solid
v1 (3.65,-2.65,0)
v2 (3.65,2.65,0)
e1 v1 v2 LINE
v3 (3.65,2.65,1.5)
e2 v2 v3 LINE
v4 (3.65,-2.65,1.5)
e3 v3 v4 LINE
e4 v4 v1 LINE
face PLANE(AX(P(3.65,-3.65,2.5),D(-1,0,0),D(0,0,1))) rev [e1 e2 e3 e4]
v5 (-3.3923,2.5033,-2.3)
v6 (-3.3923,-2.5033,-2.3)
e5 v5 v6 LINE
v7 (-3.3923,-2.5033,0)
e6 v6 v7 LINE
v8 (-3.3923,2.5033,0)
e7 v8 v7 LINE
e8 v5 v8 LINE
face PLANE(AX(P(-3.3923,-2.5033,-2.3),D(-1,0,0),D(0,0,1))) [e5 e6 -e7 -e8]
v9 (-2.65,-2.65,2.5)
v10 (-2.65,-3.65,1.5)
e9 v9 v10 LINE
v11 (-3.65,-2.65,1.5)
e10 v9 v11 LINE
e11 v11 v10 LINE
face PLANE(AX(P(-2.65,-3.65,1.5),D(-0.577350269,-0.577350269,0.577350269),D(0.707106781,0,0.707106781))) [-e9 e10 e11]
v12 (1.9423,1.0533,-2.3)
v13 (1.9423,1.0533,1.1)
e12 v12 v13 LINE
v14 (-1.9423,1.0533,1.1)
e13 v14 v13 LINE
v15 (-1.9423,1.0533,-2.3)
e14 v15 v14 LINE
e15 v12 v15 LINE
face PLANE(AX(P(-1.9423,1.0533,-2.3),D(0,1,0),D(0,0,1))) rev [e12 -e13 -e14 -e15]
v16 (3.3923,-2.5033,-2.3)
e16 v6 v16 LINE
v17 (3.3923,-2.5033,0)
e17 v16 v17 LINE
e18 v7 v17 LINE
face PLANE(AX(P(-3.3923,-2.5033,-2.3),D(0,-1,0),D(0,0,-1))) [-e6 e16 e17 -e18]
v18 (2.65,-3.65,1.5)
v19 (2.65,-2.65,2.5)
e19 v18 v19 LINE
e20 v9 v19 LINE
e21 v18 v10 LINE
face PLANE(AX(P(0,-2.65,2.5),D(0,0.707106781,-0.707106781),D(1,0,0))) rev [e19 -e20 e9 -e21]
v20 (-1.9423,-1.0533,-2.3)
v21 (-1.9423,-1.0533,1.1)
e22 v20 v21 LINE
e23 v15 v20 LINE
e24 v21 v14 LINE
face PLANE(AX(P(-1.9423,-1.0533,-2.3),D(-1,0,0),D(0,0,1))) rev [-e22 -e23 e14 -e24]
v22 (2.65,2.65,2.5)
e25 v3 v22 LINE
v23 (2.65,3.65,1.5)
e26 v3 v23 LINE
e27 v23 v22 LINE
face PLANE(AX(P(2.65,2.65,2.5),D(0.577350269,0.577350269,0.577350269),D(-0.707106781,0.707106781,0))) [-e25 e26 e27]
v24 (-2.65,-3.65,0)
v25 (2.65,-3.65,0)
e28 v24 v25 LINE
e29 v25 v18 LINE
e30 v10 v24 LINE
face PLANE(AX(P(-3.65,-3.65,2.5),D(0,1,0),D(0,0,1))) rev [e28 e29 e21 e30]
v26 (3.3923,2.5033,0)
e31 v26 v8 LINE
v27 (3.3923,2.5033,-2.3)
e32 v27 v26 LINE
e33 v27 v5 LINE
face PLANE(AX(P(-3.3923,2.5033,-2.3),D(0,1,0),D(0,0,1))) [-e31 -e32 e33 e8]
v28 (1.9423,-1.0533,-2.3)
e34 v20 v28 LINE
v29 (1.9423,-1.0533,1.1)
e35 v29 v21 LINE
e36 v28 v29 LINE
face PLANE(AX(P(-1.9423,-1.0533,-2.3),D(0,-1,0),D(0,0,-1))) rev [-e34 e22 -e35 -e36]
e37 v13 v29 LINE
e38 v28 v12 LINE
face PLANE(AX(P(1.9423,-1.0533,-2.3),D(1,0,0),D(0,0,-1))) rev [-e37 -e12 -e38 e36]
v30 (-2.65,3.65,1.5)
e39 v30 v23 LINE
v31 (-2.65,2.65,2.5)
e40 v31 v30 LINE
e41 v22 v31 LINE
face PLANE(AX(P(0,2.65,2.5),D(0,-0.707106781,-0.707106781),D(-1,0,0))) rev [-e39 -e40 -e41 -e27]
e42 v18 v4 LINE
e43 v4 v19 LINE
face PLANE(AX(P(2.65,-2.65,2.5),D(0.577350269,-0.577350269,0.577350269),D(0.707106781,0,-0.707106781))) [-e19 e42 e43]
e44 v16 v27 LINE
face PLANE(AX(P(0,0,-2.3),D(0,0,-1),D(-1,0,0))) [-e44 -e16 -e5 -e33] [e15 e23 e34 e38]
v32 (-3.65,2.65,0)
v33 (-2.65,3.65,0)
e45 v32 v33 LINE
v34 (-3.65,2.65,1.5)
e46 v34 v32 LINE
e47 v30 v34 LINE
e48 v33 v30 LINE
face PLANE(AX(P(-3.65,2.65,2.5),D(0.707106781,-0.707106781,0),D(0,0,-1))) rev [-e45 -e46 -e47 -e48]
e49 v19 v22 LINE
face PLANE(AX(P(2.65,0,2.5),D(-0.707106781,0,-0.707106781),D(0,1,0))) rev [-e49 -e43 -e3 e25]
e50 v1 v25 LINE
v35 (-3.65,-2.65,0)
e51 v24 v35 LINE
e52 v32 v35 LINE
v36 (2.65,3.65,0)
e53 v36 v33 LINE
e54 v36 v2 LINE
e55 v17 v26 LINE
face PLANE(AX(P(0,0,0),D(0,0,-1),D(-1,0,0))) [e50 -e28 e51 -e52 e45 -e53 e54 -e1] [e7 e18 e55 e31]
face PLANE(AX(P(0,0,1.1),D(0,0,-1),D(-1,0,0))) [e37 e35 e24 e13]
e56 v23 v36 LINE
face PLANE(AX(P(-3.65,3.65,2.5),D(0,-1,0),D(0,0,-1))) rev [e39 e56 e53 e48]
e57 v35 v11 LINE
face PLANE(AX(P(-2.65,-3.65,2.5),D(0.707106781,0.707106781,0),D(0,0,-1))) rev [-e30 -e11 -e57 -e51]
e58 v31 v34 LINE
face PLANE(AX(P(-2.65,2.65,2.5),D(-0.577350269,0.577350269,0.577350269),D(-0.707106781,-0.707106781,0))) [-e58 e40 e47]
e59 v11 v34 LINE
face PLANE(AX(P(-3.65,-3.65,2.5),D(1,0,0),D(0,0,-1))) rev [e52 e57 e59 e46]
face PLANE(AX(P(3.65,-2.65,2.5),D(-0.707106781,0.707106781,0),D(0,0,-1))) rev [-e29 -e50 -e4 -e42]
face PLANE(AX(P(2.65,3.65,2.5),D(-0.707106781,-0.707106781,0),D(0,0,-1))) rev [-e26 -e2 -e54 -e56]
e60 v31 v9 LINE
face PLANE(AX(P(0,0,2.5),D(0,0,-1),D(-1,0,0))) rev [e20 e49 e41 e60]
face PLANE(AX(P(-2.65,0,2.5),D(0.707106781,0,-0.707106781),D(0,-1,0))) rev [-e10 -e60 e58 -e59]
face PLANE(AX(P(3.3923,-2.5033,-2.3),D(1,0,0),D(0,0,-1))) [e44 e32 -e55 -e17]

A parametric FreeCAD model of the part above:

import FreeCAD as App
import Part
import Sketcher
from FreeCAD import Vector


def edges_at(feature, points):
    """Names of the edges that pass closest to the given points."""
    edges = feature.Shape.Edges
    near = lambda p: min(range(len(edges)), key=lambda i: edges[i].distToShape(Part.Vertex(*p))[0])
    return sorted({f"Edge{near(p) + 1}" for p in points})

doc = App.newDocument("Part")
params = doc.addObject("Spreadsheet::Sheet", "Params")
for row, (alias, value) in enumerate([
    ("pad1_length", "2.3 mm"),
    ("sketch2_width", "7.3 mm"),
    ("pad2_length", "2.5 mm"),
    ("chamfer_size", "1 mm"),
    ("pocket1_length", "1.1 mm"),
], start=1):
    params.set(f"A{row}", alias)
    params.set(f"B{row}", "=" + value)
    params.setAlias(f"B{row}", alias)

body = doc.addObject("PartDesign::Body", "Body")

sketch1 = body.newObject("Sketcher::SketchObject", "Sketch")
sketch1.AttachmentSupport = (doc.getObject("XY_Plane"), [""])
sketch1.MapMode = "FlatFace"
sketch1.addGeometry(Part.LineSegment(Vector(-3.4, 2.5, 0), Vector(-3.4, -2.5, 0)), False)
sketch1.addGeometry(Part.LineSegment(Vector(-3.4, -2.5, 0), Vector(3.4, -2.5, 0)), False)
sketch1.addGeometry(Part.LineSegment(Vector(3.4, -2.5, 0), Vector(3.4, 2.5, 0)), False)
sketch1.addGeometry(Part.LineSegment(Vector(3.4, 2.5, 0), Vector(-3.4, 2.5, 0)), False)
sketch1.addGeometry(Part.LineSegment(Vector(1.9, -1.1, 0), Vector(-1.9, -1.1, 0)), False)
sketch1.addGeometry(Part.LineSegment(Vector(-1.9, -1.1, 0), Vector(-1.9, 1.1, 0)), False)
sketch1.addGeometry(Part.LineSegment(Vector(-1.9, 1.1, 0), Vector(1.9, 1.1, 0)), False)
sketch1.addGeometry(Part.LineSegment(Vector(1.9, 1.1, 0), Vector(1.9, -1.1, 0)), False)
sketch1.addConstraint(Sketcher.Constraint("Coincident", 0, 2, 1, 1))
sketch1.addConstraint(Sketcher.Constraint("Coincident", 1, 2, 2, 1))
sketch1.addConstraint(Sketcher.Constraint("Coincident", 2, 2, 3, 1))
sketch1.addConstraint(Sketcher.Constraint("Coincident", 3, 2, 0, 1))
sketch1.addConstraint(Sketcher.Constraint("Coincident", 4, 2, 5, 1))
sketch1.addConstraint(Sketcher.Constraint("Coincident", 5, 2, 6, 1))
sketch1.addConstraint(Sketcher.Constraint("Coincident", 6, 2, 7, 1))
sketch1.addConstraint(Sketcher.Constraint("Coincident", 7, 2, 4, 1))
sketch1.addConstraint(Sketcher.Constraint("Vertical", 0))
sketch1.addConstraint(Sketcher.Constraint("Horizontal", 1))
sketch1.addConstraint(Sketcher.Constraint("Vertical", 2))
sketch1.addConstraint(Sketcher.Constraint("Horizontal", 3))
sketch1.addConstraint(Sketcher.Constraint("Horizontal", 4))
sketch1.addConstraint(Sketcher.Constraint("Vertical", 5))
sketch1.addConstraint(Sketcher.Constraint("Horizontal", 6))
sketch1.addConstraint(Sketcher.Constraint("Vertical", 7))
sketch1.addConstraint(Sketcher.Constraint("Symmetric", 0, 2, 2, 2, -1, 1))
sketch1.addConstraint(Sketcher.Constraint("Symmetric", 4, 2, 6, 2, -1, 1))
sketch1.addConstraint(Sketcher.Constraint("DistanceX", 0, 2, 4, 2, 1.45))
sketch1.addConstraint(Sketcher.Constraint("DistanceY", 0, 2, 4, 2, 1.45))
sketch1.addConstraint(Sketcher.Constraint("DistanceX", 1, 1, 1, 2, 6.7846))
sketch1.addConstraint(Sketcher.Constraint("DistanceY", 0, 2, 0, 1, 5.0066))
pad1 = body.newObject("PartDesign::Pad", "Pad")
pad1.Profile = sketch1
pad1.setExpression("Length", "Params.pad1_length")
pad1.Reversed = True

sketch2 = body.newObject("Sketcher::SketchObject", "Sketch001")
sketch2.AttachmentSupport = (doc.getObject("XY_Plane"), [""])
sketch2.MapMode = "FlatFace"
sketch2.addGeometry(Part.LineSegment(Vector(-4, 4, 0), Vector(-4, -4, 0)), False)
sketch2.addGeometry(Part.LineSegment(Vector(-4, -4, 0), Vector(4, -4, 0)), False)
sketch2.addGeometry(Part.LineSegment(Vector(4, -4, 0), Vector(4, 4, 0)), False)
sketch2.addGeometry(Part.LineSegment(Vector(4, 4, 0), Vector(-4, 4, 0)), False)
sketch2.addConstraint(Sketcher.Constraint("Coincident", 0, 2, 1, 1))
sketch2.addConstraint(Sketcher.Constraint("Coincident", 1, 2, 2, 1))
sketch2.addConstraint(Sketcher.Constraint("Coincident", 2, 2, 3, 1))
sketch2.addConstraint(Sketcher.Constraint("Coincident", 3, 2, 0, 1))
sketch2.addConstraint(Sketcher.Constraint("Vertical", 0))
sketch2.addConstraint(Sketcher.Constraint("Horizontal", 1))
sketch2.addConstraint(Sketcher.Constraint("Vertical", 2))
sketch2.addConstraint(Sketcher.Constraint("Horizontal", 3))
sketch2.addConstraint(Sketcher.Constraint("Symmetric", 0, 2, 2, 2, -1, 1))
sketch2.addConstraint(Sketcher.Constraint("Equal", 3, 0))
sketch2.addConstraint(Sketcher.Constraint("DistanceX", 1, 1, 1, 2, 7.3))
sketch2.setExpression("Constraints[10]", "Params.sketch2_width")
pad2 = body.newObject("PartDesign::Pad", "Pad001")
pad2.Profile = sketch2
pad2.setExpression("Length", "Params.pad2_length")
doc.recompute()

chamfer = body.newObject("PartDesign::Chamfer", "Chamfer")
chamfer.Base = (pad2, edges_at(pad2, [
    (3.65, -3.65, 1.25),
    (3.65, 3.65, 1.25),
    (-3.65, 3.65, 1.25),
    (-3.65, -3.65, 1.25),
    (3.65, 0, 2.5),
    (0, 3.65, 2.5),
    (-3.65, 0, 2.5),
    (0, -3.65, 2.5),
]))
chamfer.setExpression("Size", "Params.chamfer_size")

sketch3 = body.newObject("Sketcher::SketchObject", "Sketch002")
sketch3.AttachmentSupport = (doc.getObject("XY_Plane"), [""])
sketch3.MapMode = "FlatFace"
sketch3.addGeometry(Part.LineSegment(Vector(1.9, 1.1, 0), Vector(1.9, -1.1, 0)), False)
sketch3.addGeometry(Part.LineSegment(Vector(1.9, -1.1, 0), Vector(-1.9, -1.1, 0)), False)
sketch3.addGeometry(Part.LineSegment(Vector(-1.9, -1.1, 0), Vector(-1.9, 1.1, 0)), False)
sketch3.addGeometry(Part.LineSegment(Vector(-1.9, 1.1, 0), Vector(1.9, 1.1, 0)), False)
sketch3.addConstraint(Sketcher.Constraint("Coincident", 0, 2, 1, 1))
sketch3.addConstraint(Sketcher.Constraint("Coincident", 1, 2, 2, 1))
sketch3.addConstraint(Sketcher.Constraint("Coincident", 2, 2, 3, 1))
sketch3.addConstraint(Sketcher.Constraint("Coincident", 3, 2, 0, 1))
sketch3.addConstraint(Sketcher.Constraint("Vertical", 0))
sketch3.addConstraint(Sketcher.Constraint("Horizontal", 1))
sketch3.addConstraint(Sketcher.Constraint("Vertical", 2))
sketch3.addConstraint(Sketcher.Constraint("Horizontal", 3))
sketch3.addConstraint(Sketcher.Constraint("Symmetric", 0, 2, 2, 2, -1, 1))
sketch3.addConstraint(Sketcher.Constraint("DistanceX", 1, 2, 1, 1, 3.8846))
sketch3.addConstraint(Sketcher.Constraint("DistanceY", 0, 2, 0, 1, 2.1066))
pocket1 = body.newObject("PartDesign::Pocket", "Pocket")
pocket1.Profile = sketch3
pocket1.setExpression("Length", "Params.pocket1_length")
pocket1.Reversed = True

doc.recompute()
